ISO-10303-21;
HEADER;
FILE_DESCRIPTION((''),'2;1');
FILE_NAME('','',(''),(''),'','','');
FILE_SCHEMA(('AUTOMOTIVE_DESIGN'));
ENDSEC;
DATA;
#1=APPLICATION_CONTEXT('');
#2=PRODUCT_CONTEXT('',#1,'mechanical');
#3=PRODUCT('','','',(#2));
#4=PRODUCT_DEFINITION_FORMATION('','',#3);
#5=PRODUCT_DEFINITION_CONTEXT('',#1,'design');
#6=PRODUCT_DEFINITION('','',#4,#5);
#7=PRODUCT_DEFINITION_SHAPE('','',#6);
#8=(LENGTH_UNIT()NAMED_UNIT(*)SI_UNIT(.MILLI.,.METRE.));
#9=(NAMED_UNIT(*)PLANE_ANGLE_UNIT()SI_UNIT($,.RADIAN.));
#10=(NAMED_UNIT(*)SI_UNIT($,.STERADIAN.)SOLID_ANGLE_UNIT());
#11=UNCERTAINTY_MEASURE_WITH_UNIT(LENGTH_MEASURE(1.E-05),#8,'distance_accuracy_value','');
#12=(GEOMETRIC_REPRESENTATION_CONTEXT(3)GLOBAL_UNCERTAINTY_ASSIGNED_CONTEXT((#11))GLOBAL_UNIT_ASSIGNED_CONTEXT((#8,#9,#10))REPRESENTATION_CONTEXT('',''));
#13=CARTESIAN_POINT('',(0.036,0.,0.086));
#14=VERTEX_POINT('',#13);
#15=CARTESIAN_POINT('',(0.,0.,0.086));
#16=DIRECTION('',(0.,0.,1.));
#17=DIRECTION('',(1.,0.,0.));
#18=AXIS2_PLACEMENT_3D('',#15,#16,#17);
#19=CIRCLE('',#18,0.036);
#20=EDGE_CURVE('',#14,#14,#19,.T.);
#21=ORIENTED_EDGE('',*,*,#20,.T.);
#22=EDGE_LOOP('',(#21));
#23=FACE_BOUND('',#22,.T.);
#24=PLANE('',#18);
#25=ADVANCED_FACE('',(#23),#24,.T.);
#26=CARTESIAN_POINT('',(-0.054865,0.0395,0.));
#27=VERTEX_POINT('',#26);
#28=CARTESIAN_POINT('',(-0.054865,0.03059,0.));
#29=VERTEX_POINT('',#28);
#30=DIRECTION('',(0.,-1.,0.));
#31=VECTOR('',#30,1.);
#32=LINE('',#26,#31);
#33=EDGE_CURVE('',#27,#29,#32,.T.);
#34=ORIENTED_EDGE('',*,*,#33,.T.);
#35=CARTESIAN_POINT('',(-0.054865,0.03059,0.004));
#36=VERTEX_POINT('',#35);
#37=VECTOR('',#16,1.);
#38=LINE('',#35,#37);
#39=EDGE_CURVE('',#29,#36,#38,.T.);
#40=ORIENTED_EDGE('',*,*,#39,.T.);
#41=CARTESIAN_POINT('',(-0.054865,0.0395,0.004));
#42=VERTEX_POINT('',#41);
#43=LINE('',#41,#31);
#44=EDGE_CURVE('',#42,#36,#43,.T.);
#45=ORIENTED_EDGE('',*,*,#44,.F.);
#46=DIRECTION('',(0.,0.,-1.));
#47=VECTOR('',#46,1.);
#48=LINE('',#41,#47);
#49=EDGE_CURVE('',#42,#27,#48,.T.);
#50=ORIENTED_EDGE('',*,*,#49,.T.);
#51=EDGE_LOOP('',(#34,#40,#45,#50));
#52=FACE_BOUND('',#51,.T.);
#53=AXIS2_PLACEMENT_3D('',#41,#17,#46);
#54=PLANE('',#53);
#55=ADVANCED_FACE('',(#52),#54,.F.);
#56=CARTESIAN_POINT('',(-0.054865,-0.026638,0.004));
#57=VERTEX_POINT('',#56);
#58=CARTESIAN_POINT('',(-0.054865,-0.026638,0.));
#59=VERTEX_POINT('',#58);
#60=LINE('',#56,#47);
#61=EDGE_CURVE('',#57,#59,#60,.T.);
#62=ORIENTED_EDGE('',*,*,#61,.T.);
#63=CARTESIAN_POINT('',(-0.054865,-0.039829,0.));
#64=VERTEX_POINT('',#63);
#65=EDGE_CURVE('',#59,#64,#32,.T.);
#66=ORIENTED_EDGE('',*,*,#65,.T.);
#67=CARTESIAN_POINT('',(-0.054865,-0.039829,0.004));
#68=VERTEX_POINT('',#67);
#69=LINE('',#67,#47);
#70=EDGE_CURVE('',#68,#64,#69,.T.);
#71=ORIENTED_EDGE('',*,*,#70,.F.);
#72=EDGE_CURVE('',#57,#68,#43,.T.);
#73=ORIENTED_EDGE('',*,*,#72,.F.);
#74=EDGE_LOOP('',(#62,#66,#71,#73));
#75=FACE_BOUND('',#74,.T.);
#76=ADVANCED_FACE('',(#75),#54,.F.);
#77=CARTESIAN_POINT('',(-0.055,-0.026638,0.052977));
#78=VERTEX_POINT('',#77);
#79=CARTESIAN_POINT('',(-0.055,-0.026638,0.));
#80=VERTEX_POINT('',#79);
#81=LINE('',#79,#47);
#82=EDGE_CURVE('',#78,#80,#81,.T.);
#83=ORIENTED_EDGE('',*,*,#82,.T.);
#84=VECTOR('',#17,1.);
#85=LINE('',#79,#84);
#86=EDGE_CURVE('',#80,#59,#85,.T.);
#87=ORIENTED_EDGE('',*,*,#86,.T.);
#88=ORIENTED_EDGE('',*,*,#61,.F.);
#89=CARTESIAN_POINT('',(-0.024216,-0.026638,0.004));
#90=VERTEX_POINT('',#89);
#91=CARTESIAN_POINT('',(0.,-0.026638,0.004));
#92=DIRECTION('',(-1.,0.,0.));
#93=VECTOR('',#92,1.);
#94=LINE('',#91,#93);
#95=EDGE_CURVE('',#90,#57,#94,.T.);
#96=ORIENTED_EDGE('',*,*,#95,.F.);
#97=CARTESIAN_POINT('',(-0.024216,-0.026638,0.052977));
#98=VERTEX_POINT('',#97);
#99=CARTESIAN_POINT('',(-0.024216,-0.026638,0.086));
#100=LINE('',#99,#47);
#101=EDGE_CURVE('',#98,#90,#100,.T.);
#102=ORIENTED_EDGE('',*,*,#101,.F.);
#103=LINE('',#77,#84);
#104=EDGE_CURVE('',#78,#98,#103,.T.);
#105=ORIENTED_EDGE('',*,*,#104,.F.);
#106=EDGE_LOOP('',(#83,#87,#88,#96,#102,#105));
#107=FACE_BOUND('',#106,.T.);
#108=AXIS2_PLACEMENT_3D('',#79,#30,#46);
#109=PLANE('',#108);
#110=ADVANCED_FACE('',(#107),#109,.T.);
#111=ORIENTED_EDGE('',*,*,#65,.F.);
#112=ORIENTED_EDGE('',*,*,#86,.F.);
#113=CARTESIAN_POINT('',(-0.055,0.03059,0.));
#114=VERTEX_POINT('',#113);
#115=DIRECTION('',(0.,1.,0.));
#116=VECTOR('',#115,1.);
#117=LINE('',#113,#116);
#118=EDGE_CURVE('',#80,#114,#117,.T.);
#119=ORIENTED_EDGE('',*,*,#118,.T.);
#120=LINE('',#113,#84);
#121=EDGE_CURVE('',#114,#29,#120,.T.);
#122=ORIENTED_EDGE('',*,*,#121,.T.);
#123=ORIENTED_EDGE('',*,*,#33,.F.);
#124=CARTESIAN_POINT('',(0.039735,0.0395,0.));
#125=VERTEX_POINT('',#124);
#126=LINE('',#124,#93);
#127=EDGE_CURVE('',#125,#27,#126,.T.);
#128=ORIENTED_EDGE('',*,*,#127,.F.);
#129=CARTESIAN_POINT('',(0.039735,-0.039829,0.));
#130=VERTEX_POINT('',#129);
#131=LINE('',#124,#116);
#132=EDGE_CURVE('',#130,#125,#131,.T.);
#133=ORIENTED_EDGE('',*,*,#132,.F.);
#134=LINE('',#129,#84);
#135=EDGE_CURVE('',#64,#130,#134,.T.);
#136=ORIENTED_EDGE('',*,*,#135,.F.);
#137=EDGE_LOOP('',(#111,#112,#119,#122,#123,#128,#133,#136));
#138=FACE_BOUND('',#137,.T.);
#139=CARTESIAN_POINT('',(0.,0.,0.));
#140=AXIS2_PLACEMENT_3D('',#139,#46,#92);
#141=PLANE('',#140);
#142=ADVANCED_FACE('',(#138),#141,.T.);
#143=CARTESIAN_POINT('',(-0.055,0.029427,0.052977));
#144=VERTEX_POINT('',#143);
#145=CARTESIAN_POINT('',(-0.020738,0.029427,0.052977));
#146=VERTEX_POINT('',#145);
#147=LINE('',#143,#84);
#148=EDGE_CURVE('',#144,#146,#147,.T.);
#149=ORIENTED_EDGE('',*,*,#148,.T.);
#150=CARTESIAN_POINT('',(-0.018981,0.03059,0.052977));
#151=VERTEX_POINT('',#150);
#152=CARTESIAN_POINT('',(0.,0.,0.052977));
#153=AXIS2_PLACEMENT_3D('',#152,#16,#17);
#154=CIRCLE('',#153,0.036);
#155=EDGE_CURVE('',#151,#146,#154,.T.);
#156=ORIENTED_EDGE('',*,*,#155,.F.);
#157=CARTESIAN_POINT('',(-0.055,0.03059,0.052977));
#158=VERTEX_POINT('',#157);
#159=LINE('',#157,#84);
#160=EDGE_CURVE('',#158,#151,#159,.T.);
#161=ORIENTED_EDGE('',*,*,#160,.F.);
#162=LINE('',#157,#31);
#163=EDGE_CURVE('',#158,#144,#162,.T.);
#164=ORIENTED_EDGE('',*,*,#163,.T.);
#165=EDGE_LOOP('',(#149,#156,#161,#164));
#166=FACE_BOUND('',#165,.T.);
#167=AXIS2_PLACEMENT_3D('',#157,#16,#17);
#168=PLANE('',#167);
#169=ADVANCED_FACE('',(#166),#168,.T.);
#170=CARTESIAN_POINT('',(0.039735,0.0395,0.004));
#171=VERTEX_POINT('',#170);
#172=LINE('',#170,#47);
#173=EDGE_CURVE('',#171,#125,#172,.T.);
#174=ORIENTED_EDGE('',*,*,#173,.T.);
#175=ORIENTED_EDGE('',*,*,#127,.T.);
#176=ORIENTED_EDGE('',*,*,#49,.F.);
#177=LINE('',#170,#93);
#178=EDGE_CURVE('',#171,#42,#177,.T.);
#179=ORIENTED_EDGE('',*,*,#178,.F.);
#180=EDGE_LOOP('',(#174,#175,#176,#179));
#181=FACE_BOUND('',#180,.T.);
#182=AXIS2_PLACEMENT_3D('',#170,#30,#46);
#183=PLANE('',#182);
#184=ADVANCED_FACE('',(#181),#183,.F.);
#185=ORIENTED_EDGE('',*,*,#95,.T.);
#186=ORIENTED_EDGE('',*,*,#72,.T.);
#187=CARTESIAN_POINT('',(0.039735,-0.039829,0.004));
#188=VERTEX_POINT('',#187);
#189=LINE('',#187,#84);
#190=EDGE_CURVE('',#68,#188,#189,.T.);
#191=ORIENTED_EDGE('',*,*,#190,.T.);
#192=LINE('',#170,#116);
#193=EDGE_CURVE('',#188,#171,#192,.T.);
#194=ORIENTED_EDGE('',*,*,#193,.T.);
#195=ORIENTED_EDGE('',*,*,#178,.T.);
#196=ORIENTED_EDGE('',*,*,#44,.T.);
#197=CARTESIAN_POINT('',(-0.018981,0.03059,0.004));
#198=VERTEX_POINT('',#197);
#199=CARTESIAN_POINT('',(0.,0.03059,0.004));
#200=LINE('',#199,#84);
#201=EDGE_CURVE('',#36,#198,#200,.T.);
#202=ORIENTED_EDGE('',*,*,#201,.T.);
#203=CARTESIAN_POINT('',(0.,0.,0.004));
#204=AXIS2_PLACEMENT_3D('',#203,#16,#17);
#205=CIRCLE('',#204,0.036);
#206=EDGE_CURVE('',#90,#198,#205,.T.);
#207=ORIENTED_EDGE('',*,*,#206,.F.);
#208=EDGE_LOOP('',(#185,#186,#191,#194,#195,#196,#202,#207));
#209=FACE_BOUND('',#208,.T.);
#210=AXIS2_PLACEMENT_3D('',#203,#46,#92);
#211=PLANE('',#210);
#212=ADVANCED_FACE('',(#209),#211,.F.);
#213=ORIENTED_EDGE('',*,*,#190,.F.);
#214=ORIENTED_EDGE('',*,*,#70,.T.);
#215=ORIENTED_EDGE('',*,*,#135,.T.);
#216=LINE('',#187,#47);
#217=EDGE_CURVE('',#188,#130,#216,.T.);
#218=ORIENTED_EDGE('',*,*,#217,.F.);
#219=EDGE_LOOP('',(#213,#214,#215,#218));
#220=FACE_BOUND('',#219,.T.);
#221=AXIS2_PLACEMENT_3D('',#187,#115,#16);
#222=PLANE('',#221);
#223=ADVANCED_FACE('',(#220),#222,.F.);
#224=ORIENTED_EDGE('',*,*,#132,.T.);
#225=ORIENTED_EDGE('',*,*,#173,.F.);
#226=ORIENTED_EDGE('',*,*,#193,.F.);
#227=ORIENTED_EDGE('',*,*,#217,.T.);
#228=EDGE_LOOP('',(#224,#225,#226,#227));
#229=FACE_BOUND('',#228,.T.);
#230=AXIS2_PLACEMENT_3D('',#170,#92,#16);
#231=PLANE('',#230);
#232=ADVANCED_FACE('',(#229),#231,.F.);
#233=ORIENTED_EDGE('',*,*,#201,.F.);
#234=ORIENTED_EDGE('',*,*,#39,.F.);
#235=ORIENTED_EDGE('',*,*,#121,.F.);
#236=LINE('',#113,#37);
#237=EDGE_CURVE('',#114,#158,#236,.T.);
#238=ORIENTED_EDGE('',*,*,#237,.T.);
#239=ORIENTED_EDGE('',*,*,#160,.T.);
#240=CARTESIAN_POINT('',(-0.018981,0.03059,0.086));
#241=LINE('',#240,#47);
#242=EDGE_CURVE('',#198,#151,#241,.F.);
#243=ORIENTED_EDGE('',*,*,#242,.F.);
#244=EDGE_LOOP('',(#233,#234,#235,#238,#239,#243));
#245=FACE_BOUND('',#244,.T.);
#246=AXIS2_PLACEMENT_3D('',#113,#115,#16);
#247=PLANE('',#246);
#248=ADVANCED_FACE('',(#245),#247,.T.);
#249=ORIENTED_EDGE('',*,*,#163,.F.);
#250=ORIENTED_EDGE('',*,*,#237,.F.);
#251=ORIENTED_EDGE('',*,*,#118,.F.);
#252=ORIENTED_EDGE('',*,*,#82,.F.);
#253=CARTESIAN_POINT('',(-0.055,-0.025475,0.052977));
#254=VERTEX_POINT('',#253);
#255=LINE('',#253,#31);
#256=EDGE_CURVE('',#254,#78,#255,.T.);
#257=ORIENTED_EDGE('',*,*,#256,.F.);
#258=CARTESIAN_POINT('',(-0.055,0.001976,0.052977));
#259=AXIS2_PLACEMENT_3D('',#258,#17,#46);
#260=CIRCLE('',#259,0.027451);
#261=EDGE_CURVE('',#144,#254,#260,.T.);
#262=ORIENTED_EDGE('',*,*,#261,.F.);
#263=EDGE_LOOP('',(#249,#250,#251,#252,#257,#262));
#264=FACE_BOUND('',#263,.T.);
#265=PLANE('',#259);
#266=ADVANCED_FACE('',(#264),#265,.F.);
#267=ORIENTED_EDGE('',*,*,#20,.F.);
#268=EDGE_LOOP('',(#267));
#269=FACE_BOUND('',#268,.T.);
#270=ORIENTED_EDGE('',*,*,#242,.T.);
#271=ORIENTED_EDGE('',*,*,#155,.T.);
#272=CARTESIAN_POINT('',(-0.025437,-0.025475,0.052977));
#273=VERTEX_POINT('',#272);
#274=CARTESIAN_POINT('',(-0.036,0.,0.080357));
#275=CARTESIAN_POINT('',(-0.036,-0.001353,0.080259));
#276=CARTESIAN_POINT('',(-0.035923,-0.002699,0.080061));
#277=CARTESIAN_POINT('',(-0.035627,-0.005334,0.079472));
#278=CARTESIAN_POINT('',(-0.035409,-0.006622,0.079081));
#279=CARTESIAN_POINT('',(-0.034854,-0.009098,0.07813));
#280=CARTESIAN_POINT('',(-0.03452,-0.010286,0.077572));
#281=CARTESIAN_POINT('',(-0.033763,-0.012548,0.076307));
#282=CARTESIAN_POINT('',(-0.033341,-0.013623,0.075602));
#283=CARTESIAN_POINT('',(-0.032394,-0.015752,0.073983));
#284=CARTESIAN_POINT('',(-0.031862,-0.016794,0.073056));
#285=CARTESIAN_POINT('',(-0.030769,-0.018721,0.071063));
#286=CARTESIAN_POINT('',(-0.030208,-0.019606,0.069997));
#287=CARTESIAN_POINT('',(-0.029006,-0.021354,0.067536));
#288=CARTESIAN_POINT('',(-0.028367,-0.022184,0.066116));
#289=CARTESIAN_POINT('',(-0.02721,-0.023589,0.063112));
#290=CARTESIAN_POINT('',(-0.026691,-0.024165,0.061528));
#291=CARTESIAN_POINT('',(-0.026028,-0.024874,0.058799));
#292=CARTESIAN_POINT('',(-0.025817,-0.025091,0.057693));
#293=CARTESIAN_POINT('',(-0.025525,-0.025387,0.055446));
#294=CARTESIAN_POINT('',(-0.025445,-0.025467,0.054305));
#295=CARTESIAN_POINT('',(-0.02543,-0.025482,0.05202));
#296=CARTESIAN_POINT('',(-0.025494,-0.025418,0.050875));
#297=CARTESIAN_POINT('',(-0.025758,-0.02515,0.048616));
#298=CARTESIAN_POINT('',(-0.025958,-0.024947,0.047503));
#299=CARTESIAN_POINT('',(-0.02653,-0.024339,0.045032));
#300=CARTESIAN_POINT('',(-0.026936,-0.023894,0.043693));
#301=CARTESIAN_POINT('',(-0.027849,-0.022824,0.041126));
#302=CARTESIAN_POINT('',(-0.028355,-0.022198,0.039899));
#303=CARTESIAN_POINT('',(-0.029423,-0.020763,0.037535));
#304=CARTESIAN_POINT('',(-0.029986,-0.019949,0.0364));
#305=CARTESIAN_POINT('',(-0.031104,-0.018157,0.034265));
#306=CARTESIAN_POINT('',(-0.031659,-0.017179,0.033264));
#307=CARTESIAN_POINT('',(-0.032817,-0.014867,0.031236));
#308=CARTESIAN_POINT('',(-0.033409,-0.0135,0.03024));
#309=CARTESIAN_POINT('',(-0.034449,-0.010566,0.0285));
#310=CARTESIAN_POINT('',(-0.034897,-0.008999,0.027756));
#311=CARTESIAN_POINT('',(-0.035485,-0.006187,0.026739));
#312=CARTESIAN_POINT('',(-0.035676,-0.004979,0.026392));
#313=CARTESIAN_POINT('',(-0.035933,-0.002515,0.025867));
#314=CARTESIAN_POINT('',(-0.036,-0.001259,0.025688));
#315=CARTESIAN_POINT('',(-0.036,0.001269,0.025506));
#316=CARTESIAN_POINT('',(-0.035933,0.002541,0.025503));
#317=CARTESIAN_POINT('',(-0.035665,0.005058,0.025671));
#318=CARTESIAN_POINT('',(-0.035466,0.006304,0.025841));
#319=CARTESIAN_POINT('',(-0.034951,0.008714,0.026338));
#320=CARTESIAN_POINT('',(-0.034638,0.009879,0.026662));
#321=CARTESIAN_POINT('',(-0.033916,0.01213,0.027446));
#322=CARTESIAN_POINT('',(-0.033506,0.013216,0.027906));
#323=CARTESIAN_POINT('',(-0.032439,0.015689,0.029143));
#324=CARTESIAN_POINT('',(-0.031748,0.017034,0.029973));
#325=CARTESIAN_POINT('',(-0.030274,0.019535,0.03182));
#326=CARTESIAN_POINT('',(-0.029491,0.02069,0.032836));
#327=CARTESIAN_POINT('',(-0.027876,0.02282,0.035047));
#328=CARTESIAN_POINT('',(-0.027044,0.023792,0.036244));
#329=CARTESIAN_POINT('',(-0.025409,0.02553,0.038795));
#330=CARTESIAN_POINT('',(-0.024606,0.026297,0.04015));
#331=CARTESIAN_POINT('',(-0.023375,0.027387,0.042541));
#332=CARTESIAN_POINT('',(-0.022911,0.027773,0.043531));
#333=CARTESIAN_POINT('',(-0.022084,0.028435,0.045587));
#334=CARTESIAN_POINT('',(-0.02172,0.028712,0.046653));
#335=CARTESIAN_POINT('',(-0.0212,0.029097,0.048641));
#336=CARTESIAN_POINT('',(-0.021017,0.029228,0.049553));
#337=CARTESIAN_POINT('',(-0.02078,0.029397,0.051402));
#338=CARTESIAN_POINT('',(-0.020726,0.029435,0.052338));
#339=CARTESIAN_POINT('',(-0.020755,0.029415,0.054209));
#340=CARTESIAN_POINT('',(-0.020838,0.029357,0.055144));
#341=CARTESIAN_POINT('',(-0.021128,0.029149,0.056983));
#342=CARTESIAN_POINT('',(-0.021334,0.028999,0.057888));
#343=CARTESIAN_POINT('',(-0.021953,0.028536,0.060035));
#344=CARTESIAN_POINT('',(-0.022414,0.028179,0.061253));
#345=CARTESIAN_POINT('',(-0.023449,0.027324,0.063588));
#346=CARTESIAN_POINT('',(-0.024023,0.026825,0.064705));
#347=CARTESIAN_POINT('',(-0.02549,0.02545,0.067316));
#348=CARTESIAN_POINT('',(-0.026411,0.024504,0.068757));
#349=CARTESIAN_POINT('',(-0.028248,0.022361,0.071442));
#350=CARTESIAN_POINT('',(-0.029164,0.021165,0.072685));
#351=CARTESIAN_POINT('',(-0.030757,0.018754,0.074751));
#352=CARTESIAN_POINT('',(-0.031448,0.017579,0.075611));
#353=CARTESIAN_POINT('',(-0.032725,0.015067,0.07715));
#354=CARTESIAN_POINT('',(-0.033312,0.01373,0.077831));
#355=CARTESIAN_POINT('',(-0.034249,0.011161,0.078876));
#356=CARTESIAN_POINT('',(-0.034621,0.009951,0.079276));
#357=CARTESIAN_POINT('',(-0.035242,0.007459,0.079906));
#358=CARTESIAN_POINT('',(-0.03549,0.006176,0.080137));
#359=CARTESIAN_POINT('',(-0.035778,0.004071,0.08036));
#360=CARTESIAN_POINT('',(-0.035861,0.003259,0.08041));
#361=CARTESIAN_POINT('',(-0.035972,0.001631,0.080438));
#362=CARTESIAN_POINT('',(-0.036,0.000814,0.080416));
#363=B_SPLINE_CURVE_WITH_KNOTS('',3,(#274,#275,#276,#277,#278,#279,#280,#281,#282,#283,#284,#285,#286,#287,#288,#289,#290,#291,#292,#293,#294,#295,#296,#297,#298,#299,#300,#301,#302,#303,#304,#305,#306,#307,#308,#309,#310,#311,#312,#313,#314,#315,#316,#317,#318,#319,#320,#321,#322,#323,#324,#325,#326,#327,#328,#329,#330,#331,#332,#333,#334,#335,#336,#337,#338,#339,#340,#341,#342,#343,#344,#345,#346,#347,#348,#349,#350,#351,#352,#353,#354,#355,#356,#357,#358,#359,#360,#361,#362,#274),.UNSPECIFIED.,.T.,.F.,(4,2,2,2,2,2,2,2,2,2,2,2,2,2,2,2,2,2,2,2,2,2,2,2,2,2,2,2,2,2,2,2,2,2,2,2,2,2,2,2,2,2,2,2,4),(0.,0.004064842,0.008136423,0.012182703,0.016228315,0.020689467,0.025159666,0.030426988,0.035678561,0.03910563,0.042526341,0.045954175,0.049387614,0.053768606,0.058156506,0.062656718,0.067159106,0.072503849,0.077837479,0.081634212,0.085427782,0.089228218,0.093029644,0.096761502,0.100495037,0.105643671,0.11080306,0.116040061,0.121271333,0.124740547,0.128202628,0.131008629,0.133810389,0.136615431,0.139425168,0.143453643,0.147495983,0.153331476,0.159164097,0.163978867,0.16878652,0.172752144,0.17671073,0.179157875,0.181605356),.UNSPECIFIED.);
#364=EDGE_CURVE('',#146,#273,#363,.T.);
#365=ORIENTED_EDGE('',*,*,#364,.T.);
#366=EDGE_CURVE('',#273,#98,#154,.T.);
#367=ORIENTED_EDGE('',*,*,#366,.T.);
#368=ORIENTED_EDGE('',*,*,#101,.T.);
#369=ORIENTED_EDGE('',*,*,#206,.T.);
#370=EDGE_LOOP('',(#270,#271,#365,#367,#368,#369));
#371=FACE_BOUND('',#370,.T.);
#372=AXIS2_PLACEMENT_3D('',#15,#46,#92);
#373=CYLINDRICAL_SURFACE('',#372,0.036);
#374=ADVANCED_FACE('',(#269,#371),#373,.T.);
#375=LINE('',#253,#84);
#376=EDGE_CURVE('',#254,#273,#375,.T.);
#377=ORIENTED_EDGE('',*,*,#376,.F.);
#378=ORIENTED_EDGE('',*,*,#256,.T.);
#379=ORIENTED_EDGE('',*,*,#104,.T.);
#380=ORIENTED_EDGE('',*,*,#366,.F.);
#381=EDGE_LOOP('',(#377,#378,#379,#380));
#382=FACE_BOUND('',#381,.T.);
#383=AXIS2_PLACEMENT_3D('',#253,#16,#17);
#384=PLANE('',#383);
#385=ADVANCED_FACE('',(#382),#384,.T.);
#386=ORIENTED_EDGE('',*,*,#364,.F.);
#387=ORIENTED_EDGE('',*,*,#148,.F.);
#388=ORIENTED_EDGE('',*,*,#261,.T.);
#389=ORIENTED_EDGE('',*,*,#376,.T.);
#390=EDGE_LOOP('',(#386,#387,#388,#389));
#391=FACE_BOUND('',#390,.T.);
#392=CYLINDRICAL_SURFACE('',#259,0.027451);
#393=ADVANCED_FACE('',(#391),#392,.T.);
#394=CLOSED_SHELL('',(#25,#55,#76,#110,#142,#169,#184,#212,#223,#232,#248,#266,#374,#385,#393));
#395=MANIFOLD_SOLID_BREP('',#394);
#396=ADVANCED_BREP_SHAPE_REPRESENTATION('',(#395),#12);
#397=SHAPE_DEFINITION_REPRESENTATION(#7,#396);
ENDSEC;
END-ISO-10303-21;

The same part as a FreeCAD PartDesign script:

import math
import FreeCAD as App
import Part
import Sketcher

V = App.Vector

doc = App.newDocument("Part")
params = doc.addObject("Spreadsheet::Sheet", "Params")
for row, (alias, value) in enumerate([
    ("pad1_length", "0.004 mm"),
    ("pad2_length", "0.086 mm"),
    ("pad3_length", "0.055 mm"),
], start=1):
    params.set(f"A{row}", alias)
    params.set(f"B{row}", "=" + value)
    params.setAlias(f"B{row}", alias)

body = doc.addObject("PartDesign::Body", "Body")

# Sketch on XY plane
sketch1 = body.newObject("Sketcher::SketchObject", "Sketch")
sketch1.AttachmentSupport = (doc.getObject("XY_Plane"), [""])
sketch1.MapMode = "FlatFace"
sketch1.addGeometry([
    Part.LineSegment(V(-0.055, 0.04, 0), V(-0.055, -0.04, 0)),  # 0
    Part.LineSegment(V(-0.055, -0.04, 0), V(0.04, -0.04, 0)),  # 1
    Part.LineSegment(V(0.04, -0.04, 0), V(0.04, 0.04, 0)),  # 2
    Part.LineSegment(V(0.04, 0.04, 0), V(-0.055, 0.04, 0)),  # 3
    Part.Circle(V(0, 0, 0), V(0, 0, 1), 0.036),  # 4
], False)
sketch1.addConstraint([
    Sketcher.Constraint("Coincident", 0, 2, 1, 1),
    Sketcher.Constraint("Coincident", 1, 2, 2, 1),
    Sketcher.Constraint("Coincident", 2, 2, 3, 1),
    Sketcher.Constraint("Coincident", 3, 2, 0, 1),
    Sketcher.Constraint("Vertical", 0),
    Sketcher.Constraint("Horizontal", 1),
    Sketcher.Constraint("Vertical", 2),
    Sketcher.Constraint("Horizontal", 3),
    Sketcher.Constraint("Coincident", 4, 3, -1, 1),
    Sketcher.Constraint("Diameter", 4, 0.072),
    Sketcher.Constraint("DistanceX", 1, 1, 1, 2, 0.0946),
    Sketcher.Constraint("DistanceY", 0, 2, 0, 1, 0.079329),
    Sketcher.Constraint("DistanceY", -1, 1, 2, 2, 0.0395),
    Sketcher.Constraint("DistanceX", 0, 2, -1, 1, 0.054865),
])
pad1 = body.newObject("PartDesign::Pad", "Pad")
pad1.Profile = sketch1
pad1.setExpression("Length", "Params.pad1_length")

# Sketch on XY plane
sketch2 = body.newObject("Sketcher::SketchObject", "Sketch001")
sketch2.AttachmentSupport = (doc.getObject("XY_Plane"), [""])
sketch2.MapMode = "FlatFace"
sketch2.addGeometry(Part.Circle(V(0, 0, 0), V(0, 0, 1), 0.036), False)
sketch2.addConstraint([
    Sketcher.Constraint("Coincident", 0, 3, -1, 1),
    Sketcher.Constraint("Diameter", 0, 0.072),
])
pad2 = body.newObject("PartDesign::Pad", "Pad001")
pad2.Profile = sketch2
pad2.setExpression("Length", "Params.pad2_length")

# Sketch on YZ plane
sketch3 = body.newObject("Sketcher::SketchObject", "Sketch002")
sketch3.AttachmentSupport = (doc.getObject("YZ_Plane"), [""])
sketch3.MapMode = "FlatFace"
sketch3.addGeometry([
    Part.LineSegment(V(-0.0255, 0.053, 0), V(-0.0266, 0.053, 0)),  # 0
    Part.LineSegment(V(-0.0266, 0.053, 0), V(-0.0266, 0, 0)),  # 1
    Part.LineSegment(V(-0.0266, 0, 0), V(0.0306, 0, 0)),  # 2
    Part.LineSegment(V(0.0306, 0, 0), V(0.0306, 0.053, 0)),  # 3
    Part.LineSegment(V(0.0306, 0.053, 0), V(0.0294, 0.053, 0)),  # 4
    Part.ArcOfCircle(Part.Circle(V(0.002, 0.053, 0), V(0, 0, 1), 0.0275), math.radians(0), math.radians(180)),  # 5
], False)
sketch3.addConstraint([
    Sketcher.Constraint("Coincident", 0, 2, 1, 1),
    Sketcher.Constraint("Coincident", 1, 2, 2, 1),
    Sketcher.Constraint("Coincident", 2, 2, 3, 1),
    Sketcher.Constraint("Coincident", 3, 2, 4, 1),
    Sketcher.Constraint("Coincident", 4, 2, 5, 1),
    Sketcher.Constraint("Coincident", 5, 2, 0, 1),
    Sketcher.Constraint("Horizontal", 0),
    Sketcher.Constraint("Vertical", 1),
    Sketcher.Constraint("Horizontal", 2),
    Sketcher.Constraint("Vertical", 3),
    Sketcher.Constraint("Horizontal", 4),
    Sketcher.Constraint("PointOnObject", 1, 2, -1),
    Sketcher.Constraint("Horizontal", 5, 3, 0, 2),
    Sketcher.Constraint("Horizontal", 0, 2, 3, 2),
    Sketcher.Constraint("Equal", 0, 4),
    Sketcher.Constraint("Radius", 5, 0.027451),
    Sketcher.Constraint("DistanceX", 0, 2, 0, 1, 0.001163),
    Sketcher.Constraint("DistanceY", 1, 2, 1, 1, 0.052977),
    Sketcher.Constraint("DistanceX", -1, 1, 2, 2, 0.03059),
])
pad3 = body.newObject("PartDesign::Pad", "Pad002")
pad3.Profile = sketch3
pad3.setExpression("Length", "Params.pad3_length")
pad3.Reversed = True

doc.recompute()
